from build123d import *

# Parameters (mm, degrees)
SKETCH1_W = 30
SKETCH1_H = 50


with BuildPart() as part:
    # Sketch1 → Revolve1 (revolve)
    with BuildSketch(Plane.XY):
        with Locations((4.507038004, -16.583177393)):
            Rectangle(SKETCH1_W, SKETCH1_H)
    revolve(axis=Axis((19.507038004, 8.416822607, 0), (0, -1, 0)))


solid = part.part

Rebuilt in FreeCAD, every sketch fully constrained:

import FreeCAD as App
import Part
import Sketcher
Q = App.Units.Quantity


def add_polygon(sketch, points):
    """Adds a closed chain of lines whose ends are joined by coincident constraints."""
    first, n = sketch.GeometryCount, len(points)
    for a, b in zip(points, points[1:] + points[:1]):
        sketch.addGeometry(Part.LineSegment(App.Vector(*a, 0), App.Vector(*b, 0)), False)
    for i in range(n):
        sketch.addConstraint(Sketcher.Constraint("Coincident", first + i, 2, first + (i + 1) % n, 1))

doc = App.newDocument("Part")
params = doc.addObject("Spreadsheet::Sheet", "Params")
for row, (alias, value) in enumerate([
    ("sketch1_width", "30 mm"),
    ("sketch1_height", "50 mm"),
    ("revolution_angle", "360 deg"),
], start=1):
    params.set(f"A{row}", alias)
    params.set(f"B{row}", "=" + value)
    params.setAlias(f"B{row}", alias)

body = doc.addObject("PartDesign::Body", "Body")

# Sketch on XY plane
sketch1 = doc.addObject("Sketcher::SketchObject", "Sketch")
body.addObject(sketch1)
sketch1.AttachmentSupport = (doc.XY_Plane, [""])
sketch1.MapMode = "FlatFace"
add_polygon(sketch1, [(-10, 8), (-10, -42), (20, -42), (20, 8)])  # lines 0-3
sketch1.addGeometry(Part.LineSegment(App.Vector(20, 8, 0), App.Vector(20, -42, 0)), True)  # axis
sketch1.addConstraint(Sketcher.Constraint("Vertical", 0))
sketch1.addConstraint(Sketcher.Constraint("Horizontal", 1))
sketch1.addConstraint(Sketcher.Constraint("Vertical", 2))
sketch1.addConstraint(Sketcher.Constraint("Horizontal", 3))
sketch1.addConstraint(Sketcher.Constraint("Vertical", 4))
sketch1.addConstraint(Sketcher.Constraint("Coincident", 4, 1, 2, 2))
sketch1.addConstraint(Sketcher.Constraint("Horizontal", 0, 2, 4, 2))
sketch1.addConstraint(Sketcher.Constraint("DistanceX", 1, 1, 1, 2, Q("30 mm")))
sketch1.addConstraint(Sketcher.Constraint("DistanceY", 0, 2, 0, 1, Q("50 mm")))
sketch1.addConstraint(Sketcher.Constraint("DistanceX", 0, 2, -1, 1, Q("10.492962 mm")))
sketch1.addConstraint(Sketcher.Constraint("DistanceY", 0, 2, -1, 1, Q("41.583177 mm")))
sketch1.setExpression("Constraints[11]", "Params.sketch1_width")
sketch1.setExpression("Constraints[12]", "Params.sketch1_height")
revolution = doc.addObject("PartDesign::Revolution", "Revolution")
body.addObject(revolution)
revolution.Profile = sketch1
revolution.ReferenceAxis = (sketch1, ["Axis0"])
revolution.setExpression("Angle", "Params.revolution_angle")

doc.recompute()
